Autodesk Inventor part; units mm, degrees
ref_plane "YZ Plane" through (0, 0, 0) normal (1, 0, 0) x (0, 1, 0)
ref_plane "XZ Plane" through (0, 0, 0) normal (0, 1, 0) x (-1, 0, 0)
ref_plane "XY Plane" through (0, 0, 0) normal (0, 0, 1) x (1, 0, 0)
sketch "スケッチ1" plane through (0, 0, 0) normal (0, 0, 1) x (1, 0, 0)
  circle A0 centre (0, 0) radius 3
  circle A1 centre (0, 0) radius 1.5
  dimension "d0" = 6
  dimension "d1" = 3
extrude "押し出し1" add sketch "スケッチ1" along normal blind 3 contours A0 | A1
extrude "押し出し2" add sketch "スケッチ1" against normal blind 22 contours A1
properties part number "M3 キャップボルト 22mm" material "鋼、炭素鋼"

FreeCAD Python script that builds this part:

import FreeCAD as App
import Part
import Sketcher
from FreeCAD import Vector
Q = App.Units.Quantity

doc = App.newDocument("Part")
body = doc.addObject("PartDesign::Body", "Body")

sketch1 = body.newObject("Sketcher::SketchObject", "Sketch")
sketch1.AttachmentSupport = (doc.getObject("XY_Plane"), [""])
sketch1.MapMode = "FlatFace"
sketch1.addGeometry(Part.Circle(Vector(0, 0, 0), Vector(0, 0, 1), 3), False)
sketch1.addConstraint([
    Sketcher.Constraint("Coincident", 0, 3, -1, 1),
    Sketcher.Constraint("Diameter", 0, Q("6 mm")),
])
pad1 = body.newObject("PartDesign::Pad", "Pad")
pad1.Profile = sketch1
pad1.Length = 3

sketch2 = body.newObject("Sketcher::SketchObject", "Sketch001")
sketch2.AttachmentSupport = (doc.getObject("XY_Plane"), [""])
sketch2.MapMode = "FlatFace"
sketch2.addGeometry(Part.Circle(Vector(0, 0, 0), Vector(0, 0, 1), 1.5), False)
sketch2.addConstraint([
    Sketcher.Constraint("Coincident", 0, 3, -1, 1),
    Sketcher.Constraint("Diameter", 0, Q("3 mm")),
])
pad2 = body.newObject("PartDesign::Pad", "Pad001")
pad2.Profile = sketch2
pad2.Length = 22
pad2.Reversed = True

doc.recompute()
